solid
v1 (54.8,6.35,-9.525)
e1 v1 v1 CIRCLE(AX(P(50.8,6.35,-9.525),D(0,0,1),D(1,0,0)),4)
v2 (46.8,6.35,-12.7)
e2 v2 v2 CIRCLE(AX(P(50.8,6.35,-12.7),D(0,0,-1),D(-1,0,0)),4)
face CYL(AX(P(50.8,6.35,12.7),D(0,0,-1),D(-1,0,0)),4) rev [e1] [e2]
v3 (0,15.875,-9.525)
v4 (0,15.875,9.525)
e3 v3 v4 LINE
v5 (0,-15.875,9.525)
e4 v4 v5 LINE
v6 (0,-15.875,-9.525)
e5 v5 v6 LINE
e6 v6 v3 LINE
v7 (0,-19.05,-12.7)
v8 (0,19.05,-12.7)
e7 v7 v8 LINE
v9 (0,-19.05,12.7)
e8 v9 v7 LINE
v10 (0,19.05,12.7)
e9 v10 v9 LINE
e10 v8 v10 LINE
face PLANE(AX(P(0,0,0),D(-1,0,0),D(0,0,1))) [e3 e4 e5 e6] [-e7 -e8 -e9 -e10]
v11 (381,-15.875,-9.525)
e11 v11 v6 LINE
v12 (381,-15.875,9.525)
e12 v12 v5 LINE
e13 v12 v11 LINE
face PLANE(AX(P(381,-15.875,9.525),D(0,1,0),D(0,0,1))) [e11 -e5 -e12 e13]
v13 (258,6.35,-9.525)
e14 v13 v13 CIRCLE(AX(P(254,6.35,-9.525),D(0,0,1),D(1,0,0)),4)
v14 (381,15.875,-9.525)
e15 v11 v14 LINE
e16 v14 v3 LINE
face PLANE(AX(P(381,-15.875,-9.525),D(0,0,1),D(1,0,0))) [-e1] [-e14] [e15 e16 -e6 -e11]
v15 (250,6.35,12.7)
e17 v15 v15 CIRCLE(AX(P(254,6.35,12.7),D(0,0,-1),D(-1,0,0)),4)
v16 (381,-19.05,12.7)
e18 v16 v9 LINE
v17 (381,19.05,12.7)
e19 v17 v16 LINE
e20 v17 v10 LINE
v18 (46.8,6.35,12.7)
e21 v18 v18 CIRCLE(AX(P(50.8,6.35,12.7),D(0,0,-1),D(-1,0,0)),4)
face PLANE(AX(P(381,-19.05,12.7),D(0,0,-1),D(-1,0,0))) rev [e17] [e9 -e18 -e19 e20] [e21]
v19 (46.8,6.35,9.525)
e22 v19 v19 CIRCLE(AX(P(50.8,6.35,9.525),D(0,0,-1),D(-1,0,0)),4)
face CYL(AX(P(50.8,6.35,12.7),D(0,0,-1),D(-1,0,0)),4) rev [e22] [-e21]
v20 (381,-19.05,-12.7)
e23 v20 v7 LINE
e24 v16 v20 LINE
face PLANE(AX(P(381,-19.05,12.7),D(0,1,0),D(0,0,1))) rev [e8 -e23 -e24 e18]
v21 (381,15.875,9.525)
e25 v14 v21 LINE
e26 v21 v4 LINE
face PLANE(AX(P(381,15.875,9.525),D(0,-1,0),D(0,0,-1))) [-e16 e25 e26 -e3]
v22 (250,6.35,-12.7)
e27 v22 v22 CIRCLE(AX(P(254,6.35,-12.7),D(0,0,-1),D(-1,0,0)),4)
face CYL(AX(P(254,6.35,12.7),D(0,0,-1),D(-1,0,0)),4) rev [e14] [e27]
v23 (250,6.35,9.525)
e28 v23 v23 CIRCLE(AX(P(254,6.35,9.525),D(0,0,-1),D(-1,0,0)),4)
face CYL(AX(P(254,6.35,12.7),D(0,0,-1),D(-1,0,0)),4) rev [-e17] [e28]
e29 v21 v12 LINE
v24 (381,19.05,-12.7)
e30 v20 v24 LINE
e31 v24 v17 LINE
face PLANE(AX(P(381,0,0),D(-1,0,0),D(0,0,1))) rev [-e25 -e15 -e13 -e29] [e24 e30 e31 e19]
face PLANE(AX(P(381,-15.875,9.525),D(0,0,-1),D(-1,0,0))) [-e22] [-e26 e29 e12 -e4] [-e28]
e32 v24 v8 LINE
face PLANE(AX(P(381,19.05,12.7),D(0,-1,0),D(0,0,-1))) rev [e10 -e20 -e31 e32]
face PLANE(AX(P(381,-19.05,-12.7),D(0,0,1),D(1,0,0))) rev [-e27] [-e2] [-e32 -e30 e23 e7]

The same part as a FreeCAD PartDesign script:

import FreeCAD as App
import Part
import Sketcher
Q = App.Units.Quantity


def add_polygon(sketch, points):
    """Adds a closed chain of lines whose ends are joined by coincident constraints."""
    first, n = sketch.GeometryCount, len(points)
    for a, b in zip(points, points[1:] + points[:1]):
        sketch.addGeometry(Part.LineSegment(App.Vector(*a, 0), App.Vector(*b, 0)), False)
    for i in range(n):
        sketch.addConstraint(Sketcher.Constraint("Coincident", first + i, 2, first + (i + 1) % n, 1))

doc = App.newDocument("Part")
body = doc.addObject("PartDesign::Body", "Body")

sketch1 = body.newObject("Sketcher::SketchObject", "Sketch")
sketch1.AttachmentSupport = (doc.getObject("YZ_Plane"), [""])
sketch1.MapMode = "FlatFace"
add_polygon(sketch1, [(19, 13), (-19, 13), (-19, -13), (19, -13)])
add_polygon(sketch1, [(-16, -10), (-16, 10), (16, 10), (16, -10)])
sketch1.addConstraint(Sketcher.Constraint("Horizontal", 0))
sketch1.addConstraint(Sketcher.Constraint("Vertical", 1))
sketch1.addConstraint(Sketcher.Constraint("Horizontal", 2))
sketch1.addConstraint(Sketcher.Constraint("Vertical", 3))
sketch1.addConstraint(Sketcher.Constraint("Vertical", 4))
sketch1.addConstraint(Sketcher.Constraint("Horizontal", 5))
sketch1.addConstraint(Sketcher.Constraint("Vertical", 6))
sketch1.addConstraint(Sketcher.Constraint("Horizontal", 7))
sketch1.addConstraint(Sketcher.Constraint("Symmetric", 0, 2, 2, 2, -1, 1))
sketch1.addConstraint(Sketcher.Constraint("Symmetric", 4, 2, 6, 2, -1, 1))
sketch1.addConstraint(Sketcher.Constraint("DistanceY", 1, 2, 1, 1, Q("1 in")))
sketch1.addConstraint(Sketcher.Constraint("DistanceX", 0, 2, 0, 1, Q("1.5 in")))
sketch1.addConstraint(Sketcher.Constraint("DistanceX", 5, 1, 5, 2, Q("1.25 in")))
sketch1.addConstraint(Sketcher.Constraint("DistanceY", 4, 1, 4, 2, Q("0.75 in")))
pad1 = body.newObject("PartDesign::Pad", "Pad")
pad1.Profile = sketch1
pad1.Length = Q("15 in")

sketch2 = body.newObject("Sketcher::SketchObject", "Sketch001")
sketch2.AttachmentSupport = (doc.getObject("XY_Plane"), [""])
sketch2.MapMode = "FlatFace"
sketch2.AttachmentOffset = App.Placement(App.Vector(0, 0, -0.5 * 25.4), App.Rotation())
sketch2.addGeometry(Part.Circle(App.Vector(50.8, 6.3, 0), App.Vector(0, 0, 1), 4), False)
sketch2.addGeometry(Part.Circle(App.Vector(254, 6.3, 0), App.Vector(0, 0, 1), 4), False)
sketch2.addConstraint(Sketcher.Constraint("Equal", 0, 1))
sketch2.addConstraint(Sketcher.Constraint("Horizontal", 0, 3, 1, 3))
sketch2.addConstraint(Sketcher.Constraint("DistanceX", -1, 1, 0, 3, Q("2 in")))
sketch2.addConstraint(Sketcher.Constraint("DistanceX", -1, 1, 1, 3, Q("10 in")))
sketch2.addConstraint(Sketcher.Constraint("Diameter", 0, Q("8 mm")))
sketch2.addConstraint(Sketcher.Constraint("DistanceY", -1, 1, 0, 3, Q("0.25 in")))
pocket1 = body.newObject("PartDesign::Pocket", "Pocket")
pocket1.Profile = sketch2
pocket1.Type = "ThroughAll"
pocket1.Reversed = True

doc.recompute()
